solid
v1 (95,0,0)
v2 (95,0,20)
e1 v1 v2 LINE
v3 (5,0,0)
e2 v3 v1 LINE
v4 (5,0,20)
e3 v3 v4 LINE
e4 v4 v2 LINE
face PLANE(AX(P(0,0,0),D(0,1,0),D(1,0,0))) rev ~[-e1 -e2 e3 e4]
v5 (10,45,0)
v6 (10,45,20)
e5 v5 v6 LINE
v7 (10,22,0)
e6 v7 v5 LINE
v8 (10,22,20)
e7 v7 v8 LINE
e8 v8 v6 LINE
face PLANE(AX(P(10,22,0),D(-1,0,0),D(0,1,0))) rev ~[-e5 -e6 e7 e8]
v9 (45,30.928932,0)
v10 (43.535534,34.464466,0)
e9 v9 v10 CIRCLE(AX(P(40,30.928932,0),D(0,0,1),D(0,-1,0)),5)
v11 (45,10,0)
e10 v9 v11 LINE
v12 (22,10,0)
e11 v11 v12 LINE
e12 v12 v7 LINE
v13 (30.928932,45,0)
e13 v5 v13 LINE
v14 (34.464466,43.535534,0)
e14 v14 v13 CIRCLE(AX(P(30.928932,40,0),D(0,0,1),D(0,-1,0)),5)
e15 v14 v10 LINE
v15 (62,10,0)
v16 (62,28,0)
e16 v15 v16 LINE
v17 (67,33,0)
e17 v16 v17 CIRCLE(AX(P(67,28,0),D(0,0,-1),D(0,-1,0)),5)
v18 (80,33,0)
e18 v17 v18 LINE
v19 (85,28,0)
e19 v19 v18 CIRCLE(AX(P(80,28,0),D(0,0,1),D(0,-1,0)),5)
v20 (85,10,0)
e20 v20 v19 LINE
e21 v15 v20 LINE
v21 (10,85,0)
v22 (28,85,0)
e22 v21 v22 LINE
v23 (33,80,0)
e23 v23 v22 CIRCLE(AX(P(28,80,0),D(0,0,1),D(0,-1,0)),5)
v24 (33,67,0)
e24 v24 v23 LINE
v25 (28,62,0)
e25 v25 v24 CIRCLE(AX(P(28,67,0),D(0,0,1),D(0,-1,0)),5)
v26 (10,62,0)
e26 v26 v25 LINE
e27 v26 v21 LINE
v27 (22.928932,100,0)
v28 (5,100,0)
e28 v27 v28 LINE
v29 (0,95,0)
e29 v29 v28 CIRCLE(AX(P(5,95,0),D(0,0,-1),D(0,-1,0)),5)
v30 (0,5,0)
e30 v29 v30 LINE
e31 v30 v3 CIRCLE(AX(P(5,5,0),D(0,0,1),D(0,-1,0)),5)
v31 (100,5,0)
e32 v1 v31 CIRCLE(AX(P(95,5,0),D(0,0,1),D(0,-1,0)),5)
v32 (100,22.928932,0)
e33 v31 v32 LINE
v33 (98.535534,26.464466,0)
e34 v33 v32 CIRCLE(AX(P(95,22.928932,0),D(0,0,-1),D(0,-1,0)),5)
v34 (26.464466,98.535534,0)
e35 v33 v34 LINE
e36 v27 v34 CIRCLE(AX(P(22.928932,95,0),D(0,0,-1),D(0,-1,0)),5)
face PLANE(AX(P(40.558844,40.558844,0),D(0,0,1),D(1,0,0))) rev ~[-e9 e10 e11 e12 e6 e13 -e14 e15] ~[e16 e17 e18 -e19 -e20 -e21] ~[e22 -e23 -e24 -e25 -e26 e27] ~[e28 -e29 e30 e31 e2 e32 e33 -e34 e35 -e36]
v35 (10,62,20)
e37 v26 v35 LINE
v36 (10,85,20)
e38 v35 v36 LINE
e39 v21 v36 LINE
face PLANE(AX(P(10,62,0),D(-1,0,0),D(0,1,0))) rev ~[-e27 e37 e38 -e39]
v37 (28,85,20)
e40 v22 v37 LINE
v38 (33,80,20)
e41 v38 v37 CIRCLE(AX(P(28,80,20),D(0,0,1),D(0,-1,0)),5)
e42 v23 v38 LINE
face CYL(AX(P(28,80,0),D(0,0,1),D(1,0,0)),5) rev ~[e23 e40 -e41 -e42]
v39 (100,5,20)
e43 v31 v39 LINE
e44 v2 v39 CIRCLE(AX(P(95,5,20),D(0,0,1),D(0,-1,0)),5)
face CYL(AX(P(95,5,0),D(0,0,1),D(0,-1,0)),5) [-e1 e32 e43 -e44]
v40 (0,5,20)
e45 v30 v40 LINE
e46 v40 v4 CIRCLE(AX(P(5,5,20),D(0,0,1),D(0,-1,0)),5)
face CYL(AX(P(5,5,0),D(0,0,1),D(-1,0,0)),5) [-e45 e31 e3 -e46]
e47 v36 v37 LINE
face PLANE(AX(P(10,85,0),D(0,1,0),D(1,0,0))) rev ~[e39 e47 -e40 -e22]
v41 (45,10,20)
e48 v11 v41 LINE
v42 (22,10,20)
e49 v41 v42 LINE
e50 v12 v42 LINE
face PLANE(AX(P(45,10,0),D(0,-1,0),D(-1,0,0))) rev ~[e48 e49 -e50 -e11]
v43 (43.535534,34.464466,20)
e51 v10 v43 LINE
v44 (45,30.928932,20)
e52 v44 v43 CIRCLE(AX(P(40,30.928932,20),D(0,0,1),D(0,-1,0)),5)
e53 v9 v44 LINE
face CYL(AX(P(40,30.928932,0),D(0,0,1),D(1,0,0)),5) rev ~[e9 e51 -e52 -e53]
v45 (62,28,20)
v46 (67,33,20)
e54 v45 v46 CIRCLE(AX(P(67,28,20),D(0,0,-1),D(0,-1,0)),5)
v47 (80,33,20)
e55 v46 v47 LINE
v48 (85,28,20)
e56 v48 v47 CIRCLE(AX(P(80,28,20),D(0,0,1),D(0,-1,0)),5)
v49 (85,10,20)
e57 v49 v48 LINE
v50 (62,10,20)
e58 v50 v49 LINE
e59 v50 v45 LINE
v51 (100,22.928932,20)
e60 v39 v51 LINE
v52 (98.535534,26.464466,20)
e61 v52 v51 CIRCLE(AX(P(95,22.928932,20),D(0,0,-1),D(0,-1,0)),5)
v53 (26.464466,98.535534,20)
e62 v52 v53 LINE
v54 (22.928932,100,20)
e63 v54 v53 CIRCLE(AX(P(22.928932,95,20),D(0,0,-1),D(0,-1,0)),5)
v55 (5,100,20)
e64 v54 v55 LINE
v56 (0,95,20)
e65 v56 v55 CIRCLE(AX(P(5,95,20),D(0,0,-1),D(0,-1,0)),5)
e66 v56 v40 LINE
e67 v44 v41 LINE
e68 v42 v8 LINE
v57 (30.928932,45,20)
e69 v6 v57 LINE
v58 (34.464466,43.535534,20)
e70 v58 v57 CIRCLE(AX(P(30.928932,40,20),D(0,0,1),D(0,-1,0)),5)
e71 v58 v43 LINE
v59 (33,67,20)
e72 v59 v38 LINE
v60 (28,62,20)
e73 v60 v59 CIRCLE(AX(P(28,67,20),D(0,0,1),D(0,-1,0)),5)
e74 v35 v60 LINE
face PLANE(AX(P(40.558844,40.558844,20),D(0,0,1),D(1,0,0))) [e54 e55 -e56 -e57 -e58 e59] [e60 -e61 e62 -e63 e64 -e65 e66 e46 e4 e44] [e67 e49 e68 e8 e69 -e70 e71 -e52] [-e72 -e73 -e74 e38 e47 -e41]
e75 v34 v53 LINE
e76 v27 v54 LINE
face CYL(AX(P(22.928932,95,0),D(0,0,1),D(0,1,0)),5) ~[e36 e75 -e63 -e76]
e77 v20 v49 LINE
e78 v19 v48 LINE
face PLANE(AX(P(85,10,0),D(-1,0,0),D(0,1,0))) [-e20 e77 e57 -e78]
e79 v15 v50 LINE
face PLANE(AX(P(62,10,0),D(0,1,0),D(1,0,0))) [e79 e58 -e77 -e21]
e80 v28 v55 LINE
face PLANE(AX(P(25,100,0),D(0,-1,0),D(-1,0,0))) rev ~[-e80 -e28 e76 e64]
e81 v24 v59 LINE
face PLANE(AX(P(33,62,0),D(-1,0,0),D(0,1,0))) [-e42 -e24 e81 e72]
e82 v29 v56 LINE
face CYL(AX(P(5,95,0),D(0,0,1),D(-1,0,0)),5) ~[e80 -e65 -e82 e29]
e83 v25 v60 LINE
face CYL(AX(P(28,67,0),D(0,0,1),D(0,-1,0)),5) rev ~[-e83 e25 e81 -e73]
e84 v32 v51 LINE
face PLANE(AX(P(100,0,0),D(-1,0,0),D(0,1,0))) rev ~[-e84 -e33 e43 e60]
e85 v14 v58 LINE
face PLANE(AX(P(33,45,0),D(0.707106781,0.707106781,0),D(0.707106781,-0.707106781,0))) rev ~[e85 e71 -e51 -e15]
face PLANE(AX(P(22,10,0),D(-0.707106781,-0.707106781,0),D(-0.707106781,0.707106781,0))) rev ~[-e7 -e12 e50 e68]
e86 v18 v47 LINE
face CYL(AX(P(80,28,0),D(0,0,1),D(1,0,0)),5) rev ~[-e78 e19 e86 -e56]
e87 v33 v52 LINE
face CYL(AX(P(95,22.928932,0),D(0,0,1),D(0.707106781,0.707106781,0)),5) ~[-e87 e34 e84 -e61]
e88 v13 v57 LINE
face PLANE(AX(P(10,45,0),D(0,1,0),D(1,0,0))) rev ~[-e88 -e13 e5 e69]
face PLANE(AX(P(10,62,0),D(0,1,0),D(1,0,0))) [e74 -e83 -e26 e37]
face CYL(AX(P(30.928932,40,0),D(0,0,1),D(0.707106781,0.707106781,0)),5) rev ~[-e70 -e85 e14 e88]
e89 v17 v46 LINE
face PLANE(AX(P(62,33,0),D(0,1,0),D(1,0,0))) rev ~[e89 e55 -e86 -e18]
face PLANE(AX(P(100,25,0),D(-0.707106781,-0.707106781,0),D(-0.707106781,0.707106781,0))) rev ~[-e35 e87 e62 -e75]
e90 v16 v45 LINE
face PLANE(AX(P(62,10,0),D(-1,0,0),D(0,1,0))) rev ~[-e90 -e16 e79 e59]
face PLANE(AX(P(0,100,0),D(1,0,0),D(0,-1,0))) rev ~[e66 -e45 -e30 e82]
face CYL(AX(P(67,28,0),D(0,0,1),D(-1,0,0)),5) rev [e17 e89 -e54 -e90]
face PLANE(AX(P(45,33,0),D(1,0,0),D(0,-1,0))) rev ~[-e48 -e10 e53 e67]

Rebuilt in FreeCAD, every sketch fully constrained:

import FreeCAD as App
import Part
import Sketcher


def edges_at(feature, points):
    """Names of the edges that pass closest to the given points."""
    edges = feature.Shape.Edges
    near = lambda p: min(range(len(edges)), key=lambda i: edges[i].distToShape(Part.Vertex(*p))[0])
    return sorted({f"Edge{near(p) + 1}" for p in points})


def add_polygon(sketch, points):
    """Adds a closed chain of lines whose ends are joined by coincident constraints."""
    first, n = sketch.GeometryCount, len(points)
    for a, b in zip(points, points[1:] + points[:1]):
        sketch.addGeometry(Part.LineSegment(App.Vector(*a, 0), App.Vector(*b, 0)), False)
    for i in range(n):
        sketch.addConstraint(Sketcher.Constraint("Coincident", first + i, 2, first + (i + 1) % n, 1))

doc = App.newDocument("Part")
body = doc.addObject("PartDesign::Body", "Body")

# Sketch on XY plane
sketch1 = doc.addObject("Sketcher::SketchObject", "Sketch")
body.addObject(sketch1)
sketch1.AttachmentSupport = (doc.XY_Plane, [""])
sketch1.MapMode = "FlatFace"
add_polygon(sketch1, [(0, 100), (0, 0), (100, 0), (100, 25), (25, 100)])  # lines 0-4
add_polygon(sketch1, [(45, 33), (45, 10), (22, 10), (10, 22), (10, 45), (33, 45)])  # lines 5-10
add_polygon(sketch1, [(85, 10), (62, 10), (62, 33), (85, 33)])  # lines 11-14
add_polygon(sketch1, [(33, 62), (10, 62), (10, 85), (33, 85)])  # lines 15-18
sketch1.addConstraint(Sketcher.Constraint("Vertical", 0))
sketch1.addConstraint(Sketcher.Constraint("Horizontal", 1))
sketch1.addConstraint(Sketcher.Constraint("Vertical", 2))
sketch1.addConstraint(Sketcher.Constraint("Horizontal", 4))
sketch1.addConstraint(Sketcher.Constraint("Vertical", 5))
sketch1.addConstraint(Sketcher.Constraint("Horizontal", 6))
sketch1.addConstraint(Sketcher.Constraint("Vertical", 8))
sketch1.addConstraint(Sketcher.Constraint("Horizontal", 9))
sketch1.addConstraint(Sketcher.Constraint("Horizontal", 11))
sketch1.addConstraint(Sketcher.Constraint("Vertical", 12))
sketch1.addConstraint(Sketcher.Constraint("Horizontal", 13))
sketch1.addConstraint(Sketcher.Constraint("Vertical", 14))
sketch1.addConstraint(Sketcher.Constraint("Horizontal", 15))
sketch1.addConstraint(Sketcher.Constraint("Vertical", 16))
sketch1.addConstraint(Sketcher.Constraint("Horizontal", 17))
sketch1.addConstraint(Sketcher.Constraint("Vertical", 18))
sketch1.addConstraint(Sketcher.Constraint("Coincident", 0, 2, -1, 1))
sketch1.addConstraint(Sketcher.Constraint("Parallel", 3, 7))
sketch1.addConstraint(Sketcher.Constraint("Parallel", 7, 10))
sketch1.addConstraint(Sketcher.Constraint("Horizontal", 6, 2, 11, 2))
sketch1.addConstraint(Sketcher.Constraint("Horizontal", 10, 2, 12, 2))
sketch1.addConstraint(Sketcher.Constraint("Vertical", 8, 2, 15, 2))
sketch1.addConstraint(Sketcher.Constraint("Vertical", 9, 2, 17, 2))
sketch1.addConstraint(Sketcher.Constraint("Equal", 6, 9))
sketch1.addConstraint(Sketcher.Constraint("Equal", 9, 11))
sketch1.addConstraint(Sketcher.Constraint("Equal", 1, 0))
sketch1.addConstraint(Sketcher.Constraint("Equal", 4, 2))
sketch1.addConstraint(Sketcher.Constraint("Equal", 17, 5))
sketch1.addConstraint(Sketcher.Constraint("Equal", 14, 16))
sketch1.addConstraint(Sketcher.Constraint("DistanceX", 1, 1, 1, 2, 100.0))
sketch1.addConstraint(Sketcher.Constraint("DistanceX", 4, 2, 4, 1, 25.0))
sketch1.addConstraint(Sketcher.Constraint("DistanceX", 6, 2, 6, 1, 23.0))
sketch1.addConstraint(Sketcher.Constraint("DistanceX", -1, 1, 5, 2, 45.0))
sketch1.addConstraint(Sketcher.Constraint("DistanceY", -1, 1, 5, 2, 10.0))
sketch1.addConstraint(Sketcher.Constraint("DistanceX", -1, 1, 7, 2, 10.0))
sketch1.addConstraint(Sketcher.Constraint("DistanceX", -1, 1, 11, 2, 62.0))
sketch1.addConstraint(Sketcher.Constraint("DistanceY", -1, 1, 15, 2, 62.0))
pad1 = doc.addObject("PartDesign::Pad", "Pad")
body.addObject(pad1)
pad1.Profile = sketch1
pad1.Length = 20
doc.recompute()

fillet = doc.addObject("PartDesign::Fillet", "Fillet")
body.addObject(fillet)
fillet.Base = (pad1, edges_at(pad1, [
    (0, 100, 10),
    (25, 100, 10),
    (100, 25, 10),
    (100, 0, 10),
    (33, 45, 10),
    (45, 33, 10),
    (85, 33, 10),
    (33, 85, 10),
    (62, 33, 10),
    (33, 62, 10),
    (0, 0, 10),
]))
fillet.Radius = 5

doc.recompute()
